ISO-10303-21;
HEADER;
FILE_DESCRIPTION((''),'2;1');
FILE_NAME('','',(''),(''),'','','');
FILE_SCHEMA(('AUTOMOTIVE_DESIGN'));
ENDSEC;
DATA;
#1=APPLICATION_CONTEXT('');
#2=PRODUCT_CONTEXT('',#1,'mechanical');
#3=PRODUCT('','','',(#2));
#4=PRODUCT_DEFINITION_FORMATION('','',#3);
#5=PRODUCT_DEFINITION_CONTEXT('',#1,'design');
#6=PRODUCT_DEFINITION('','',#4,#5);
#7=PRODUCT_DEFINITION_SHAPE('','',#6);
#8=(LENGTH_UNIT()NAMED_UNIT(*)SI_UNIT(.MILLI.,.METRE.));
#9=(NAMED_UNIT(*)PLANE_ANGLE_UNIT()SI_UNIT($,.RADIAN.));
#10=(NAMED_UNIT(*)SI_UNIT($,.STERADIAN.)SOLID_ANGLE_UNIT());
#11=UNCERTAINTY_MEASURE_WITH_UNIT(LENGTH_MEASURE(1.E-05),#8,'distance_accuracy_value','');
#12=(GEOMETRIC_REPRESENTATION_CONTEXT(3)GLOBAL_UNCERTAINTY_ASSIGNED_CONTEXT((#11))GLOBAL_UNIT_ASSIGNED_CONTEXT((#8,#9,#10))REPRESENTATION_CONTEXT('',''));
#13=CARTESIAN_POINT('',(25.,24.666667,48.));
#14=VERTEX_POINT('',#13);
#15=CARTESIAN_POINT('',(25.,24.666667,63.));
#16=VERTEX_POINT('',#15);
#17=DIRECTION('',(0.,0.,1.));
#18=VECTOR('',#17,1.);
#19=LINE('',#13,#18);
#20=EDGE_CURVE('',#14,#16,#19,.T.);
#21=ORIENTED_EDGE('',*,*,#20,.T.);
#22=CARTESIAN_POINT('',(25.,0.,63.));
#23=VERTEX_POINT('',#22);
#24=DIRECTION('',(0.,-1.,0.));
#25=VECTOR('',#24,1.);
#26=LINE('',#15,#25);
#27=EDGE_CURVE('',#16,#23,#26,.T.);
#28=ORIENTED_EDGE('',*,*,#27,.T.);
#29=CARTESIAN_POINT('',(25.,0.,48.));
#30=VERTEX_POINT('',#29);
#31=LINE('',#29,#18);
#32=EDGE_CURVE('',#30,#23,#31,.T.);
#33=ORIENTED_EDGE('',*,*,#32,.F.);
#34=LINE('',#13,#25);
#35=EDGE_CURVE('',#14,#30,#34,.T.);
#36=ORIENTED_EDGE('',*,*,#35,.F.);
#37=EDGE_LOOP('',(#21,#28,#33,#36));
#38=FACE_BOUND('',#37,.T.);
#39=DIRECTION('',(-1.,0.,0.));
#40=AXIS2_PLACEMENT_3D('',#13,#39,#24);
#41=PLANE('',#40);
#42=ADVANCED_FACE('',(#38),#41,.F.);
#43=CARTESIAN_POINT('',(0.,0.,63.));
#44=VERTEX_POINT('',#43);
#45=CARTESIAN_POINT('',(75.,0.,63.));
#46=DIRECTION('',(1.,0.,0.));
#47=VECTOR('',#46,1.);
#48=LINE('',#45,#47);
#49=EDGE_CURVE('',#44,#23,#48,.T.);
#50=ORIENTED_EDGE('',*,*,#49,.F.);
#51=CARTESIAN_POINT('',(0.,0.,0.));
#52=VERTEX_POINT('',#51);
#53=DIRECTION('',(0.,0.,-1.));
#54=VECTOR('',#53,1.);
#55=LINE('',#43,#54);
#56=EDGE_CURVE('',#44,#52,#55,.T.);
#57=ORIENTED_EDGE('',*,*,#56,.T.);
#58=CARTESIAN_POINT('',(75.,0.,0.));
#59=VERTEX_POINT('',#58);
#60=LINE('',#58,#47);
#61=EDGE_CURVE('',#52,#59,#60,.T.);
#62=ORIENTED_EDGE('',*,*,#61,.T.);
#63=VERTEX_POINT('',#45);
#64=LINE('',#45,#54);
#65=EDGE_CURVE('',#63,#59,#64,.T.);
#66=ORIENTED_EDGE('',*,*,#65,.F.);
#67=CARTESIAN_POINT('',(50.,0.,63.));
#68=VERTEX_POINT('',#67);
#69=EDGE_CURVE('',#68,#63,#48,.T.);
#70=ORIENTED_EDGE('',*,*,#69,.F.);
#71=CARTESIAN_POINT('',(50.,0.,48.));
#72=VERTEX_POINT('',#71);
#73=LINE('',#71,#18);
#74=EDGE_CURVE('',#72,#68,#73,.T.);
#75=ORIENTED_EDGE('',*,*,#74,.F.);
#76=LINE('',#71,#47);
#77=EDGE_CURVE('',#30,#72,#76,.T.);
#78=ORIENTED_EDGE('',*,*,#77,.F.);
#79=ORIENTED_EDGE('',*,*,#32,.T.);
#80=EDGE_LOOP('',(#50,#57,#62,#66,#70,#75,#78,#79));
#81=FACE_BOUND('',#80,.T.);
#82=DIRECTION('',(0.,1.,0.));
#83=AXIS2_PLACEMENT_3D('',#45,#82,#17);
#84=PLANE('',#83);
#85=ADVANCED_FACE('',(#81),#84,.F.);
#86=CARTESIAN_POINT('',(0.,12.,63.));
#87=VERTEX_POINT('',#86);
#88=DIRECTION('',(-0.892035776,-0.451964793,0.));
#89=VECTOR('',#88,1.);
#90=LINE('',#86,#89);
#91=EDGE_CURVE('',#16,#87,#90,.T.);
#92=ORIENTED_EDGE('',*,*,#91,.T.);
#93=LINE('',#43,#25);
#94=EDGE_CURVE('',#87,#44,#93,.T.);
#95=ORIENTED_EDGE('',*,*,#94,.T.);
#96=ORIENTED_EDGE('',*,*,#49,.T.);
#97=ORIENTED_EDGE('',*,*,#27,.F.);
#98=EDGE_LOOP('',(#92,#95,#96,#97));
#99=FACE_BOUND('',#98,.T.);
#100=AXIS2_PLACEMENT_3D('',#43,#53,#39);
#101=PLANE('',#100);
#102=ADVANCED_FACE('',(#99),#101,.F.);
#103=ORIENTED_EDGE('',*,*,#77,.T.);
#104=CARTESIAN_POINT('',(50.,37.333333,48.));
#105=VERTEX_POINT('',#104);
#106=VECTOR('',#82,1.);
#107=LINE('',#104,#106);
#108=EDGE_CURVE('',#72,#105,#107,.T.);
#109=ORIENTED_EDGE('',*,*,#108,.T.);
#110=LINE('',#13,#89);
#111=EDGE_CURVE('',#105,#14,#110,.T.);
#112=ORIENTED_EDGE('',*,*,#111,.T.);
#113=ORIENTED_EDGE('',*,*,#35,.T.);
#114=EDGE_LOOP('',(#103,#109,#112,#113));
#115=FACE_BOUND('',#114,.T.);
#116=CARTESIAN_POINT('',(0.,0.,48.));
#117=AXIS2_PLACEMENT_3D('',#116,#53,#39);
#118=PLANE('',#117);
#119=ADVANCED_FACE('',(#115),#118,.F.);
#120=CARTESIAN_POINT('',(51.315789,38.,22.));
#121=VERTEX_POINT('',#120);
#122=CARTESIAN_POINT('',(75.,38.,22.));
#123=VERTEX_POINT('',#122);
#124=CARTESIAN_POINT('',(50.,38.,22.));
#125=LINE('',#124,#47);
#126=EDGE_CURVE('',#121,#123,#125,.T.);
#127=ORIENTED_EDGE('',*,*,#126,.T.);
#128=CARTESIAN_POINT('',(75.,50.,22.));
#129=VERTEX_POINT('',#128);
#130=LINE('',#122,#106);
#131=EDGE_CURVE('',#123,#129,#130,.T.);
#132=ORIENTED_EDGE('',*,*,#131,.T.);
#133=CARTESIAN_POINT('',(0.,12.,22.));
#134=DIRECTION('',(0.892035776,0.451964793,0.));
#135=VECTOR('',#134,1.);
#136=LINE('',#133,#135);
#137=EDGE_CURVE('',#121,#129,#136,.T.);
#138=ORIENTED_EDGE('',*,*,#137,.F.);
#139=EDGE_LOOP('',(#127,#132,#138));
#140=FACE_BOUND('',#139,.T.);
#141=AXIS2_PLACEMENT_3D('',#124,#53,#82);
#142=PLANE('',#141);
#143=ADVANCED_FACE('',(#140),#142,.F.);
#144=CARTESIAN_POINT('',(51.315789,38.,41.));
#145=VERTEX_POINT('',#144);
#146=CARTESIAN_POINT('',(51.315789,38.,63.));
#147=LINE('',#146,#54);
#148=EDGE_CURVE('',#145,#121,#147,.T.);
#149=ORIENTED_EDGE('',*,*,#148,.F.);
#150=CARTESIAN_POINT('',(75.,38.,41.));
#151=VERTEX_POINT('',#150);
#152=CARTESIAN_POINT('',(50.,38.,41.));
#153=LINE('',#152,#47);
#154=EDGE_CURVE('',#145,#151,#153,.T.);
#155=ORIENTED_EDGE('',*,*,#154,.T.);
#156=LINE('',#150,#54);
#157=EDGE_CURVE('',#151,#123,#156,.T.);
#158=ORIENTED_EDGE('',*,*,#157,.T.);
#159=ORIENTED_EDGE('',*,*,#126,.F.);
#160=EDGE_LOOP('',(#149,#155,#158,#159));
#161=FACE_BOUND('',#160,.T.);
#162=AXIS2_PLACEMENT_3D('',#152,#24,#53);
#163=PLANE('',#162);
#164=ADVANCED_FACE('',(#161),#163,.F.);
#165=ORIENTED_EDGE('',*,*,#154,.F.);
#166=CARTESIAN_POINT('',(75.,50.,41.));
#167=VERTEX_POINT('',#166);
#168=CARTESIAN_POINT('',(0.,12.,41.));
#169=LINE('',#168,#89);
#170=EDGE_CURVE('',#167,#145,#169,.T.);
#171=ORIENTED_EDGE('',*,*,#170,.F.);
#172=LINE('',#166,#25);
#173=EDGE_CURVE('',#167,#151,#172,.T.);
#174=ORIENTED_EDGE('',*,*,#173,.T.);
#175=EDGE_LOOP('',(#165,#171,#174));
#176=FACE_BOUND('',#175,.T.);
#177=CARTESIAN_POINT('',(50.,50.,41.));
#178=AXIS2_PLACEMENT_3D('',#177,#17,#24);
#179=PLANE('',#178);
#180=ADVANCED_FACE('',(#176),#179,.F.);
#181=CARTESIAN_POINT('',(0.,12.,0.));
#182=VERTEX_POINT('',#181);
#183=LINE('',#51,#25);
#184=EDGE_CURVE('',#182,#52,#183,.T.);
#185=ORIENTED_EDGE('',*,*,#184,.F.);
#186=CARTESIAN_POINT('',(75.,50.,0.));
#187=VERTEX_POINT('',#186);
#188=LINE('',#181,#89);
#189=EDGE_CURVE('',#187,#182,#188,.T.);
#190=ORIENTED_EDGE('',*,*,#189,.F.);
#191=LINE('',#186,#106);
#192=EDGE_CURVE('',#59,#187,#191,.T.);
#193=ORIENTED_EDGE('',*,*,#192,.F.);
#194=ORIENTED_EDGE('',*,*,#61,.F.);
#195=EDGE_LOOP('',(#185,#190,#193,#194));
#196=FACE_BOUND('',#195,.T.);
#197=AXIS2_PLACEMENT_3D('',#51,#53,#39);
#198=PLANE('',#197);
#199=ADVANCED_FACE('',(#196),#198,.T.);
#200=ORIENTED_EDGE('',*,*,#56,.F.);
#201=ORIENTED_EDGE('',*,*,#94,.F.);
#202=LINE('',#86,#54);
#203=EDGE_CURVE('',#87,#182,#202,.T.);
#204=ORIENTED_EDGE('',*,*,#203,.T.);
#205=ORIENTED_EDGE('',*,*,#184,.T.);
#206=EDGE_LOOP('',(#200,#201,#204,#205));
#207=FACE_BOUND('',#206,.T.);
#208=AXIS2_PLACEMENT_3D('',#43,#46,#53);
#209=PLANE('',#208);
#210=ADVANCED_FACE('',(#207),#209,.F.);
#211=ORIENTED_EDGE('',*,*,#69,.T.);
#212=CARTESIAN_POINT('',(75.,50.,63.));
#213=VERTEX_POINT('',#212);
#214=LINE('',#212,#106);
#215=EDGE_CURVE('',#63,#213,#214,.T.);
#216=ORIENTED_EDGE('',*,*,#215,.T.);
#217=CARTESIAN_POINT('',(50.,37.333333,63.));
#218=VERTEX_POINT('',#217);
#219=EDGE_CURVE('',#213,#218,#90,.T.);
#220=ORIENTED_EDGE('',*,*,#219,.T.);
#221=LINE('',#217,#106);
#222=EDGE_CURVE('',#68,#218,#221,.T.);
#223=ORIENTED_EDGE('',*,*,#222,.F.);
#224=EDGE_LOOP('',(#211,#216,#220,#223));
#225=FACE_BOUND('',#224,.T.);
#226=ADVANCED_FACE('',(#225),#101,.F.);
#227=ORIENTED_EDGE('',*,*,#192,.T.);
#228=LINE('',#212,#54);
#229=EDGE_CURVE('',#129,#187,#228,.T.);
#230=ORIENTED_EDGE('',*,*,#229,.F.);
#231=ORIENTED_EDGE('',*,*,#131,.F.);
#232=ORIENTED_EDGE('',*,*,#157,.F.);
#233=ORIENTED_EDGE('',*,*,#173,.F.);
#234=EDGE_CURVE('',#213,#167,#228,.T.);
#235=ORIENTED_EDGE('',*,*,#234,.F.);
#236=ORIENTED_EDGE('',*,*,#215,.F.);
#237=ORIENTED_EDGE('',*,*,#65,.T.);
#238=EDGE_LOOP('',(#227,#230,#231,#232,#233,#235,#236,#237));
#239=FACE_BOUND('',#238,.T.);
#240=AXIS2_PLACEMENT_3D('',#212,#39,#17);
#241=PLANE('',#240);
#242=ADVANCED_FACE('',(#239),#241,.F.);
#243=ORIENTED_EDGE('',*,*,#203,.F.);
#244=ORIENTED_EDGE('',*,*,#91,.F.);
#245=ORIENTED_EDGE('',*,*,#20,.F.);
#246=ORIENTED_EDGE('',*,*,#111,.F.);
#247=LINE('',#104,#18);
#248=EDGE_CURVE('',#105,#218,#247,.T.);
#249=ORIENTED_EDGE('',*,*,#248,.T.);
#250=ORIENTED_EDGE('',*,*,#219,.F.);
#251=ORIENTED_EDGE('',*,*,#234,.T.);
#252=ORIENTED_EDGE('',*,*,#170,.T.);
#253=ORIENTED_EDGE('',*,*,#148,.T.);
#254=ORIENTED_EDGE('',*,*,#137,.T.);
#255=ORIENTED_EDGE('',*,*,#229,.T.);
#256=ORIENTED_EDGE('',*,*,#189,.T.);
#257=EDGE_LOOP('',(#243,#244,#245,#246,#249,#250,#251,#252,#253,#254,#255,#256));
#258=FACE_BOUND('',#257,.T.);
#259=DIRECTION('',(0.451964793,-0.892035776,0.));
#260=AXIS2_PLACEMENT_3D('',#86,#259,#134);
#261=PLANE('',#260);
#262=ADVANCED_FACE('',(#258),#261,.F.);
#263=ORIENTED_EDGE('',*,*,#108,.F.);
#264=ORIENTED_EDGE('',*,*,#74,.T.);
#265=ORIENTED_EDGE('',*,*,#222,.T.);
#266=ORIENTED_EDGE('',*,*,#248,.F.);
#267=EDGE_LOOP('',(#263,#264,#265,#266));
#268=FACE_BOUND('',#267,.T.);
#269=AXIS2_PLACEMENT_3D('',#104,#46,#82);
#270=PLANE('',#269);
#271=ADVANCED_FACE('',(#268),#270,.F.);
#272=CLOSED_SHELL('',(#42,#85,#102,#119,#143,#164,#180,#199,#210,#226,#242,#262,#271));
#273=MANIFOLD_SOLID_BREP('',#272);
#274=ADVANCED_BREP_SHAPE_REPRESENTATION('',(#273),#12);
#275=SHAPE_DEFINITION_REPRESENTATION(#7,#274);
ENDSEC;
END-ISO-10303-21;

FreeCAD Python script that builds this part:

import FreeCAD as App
import Part
import Sketcher
Q = App.Units.Quantity

doc = App.newDocument("Part")
params = doc.addObject("Spreadsheet::Sheet", "Params")
for row, (alias, value) in enumerate([
    ("sketch1_width", "75 mm"),
    ("sketch1_height", "50 mm"),
    ("sketch1_height2", "12 mm"),
    ("pad1_length", "63 mm"),
    ("sketch2_width", "25 mm"),
    ("pocket1_length", "15 mm"),
    ("sketch3_width", "12 mm"),
    ("sketch3_height", "19 mm"),
    ("pocket2_length", "25 mm"),
], start=1):
    params.set(f"A{row}", alias)
    params.set(f"B{row}", "=" + value)
    params.setAlias(f"B{row}", alias)

body = doc.addObject("PartDesign::Body", "Body")

# Sketch on XY plane
sketch1 = body.newObject("Sketcher::SketchObject", "Sketch")
sketch1.AttachmentSupport = (doc.getObject("XY_Plane"), [""])
sketch1.MapMode = "FlatFace"
sketch1.addGeometry([
    Part.LineSegment(App.Vector(0, 0, 0), App.Vector(75, 0, 0)),
    Part.LineSegment(App.Vector(75, 0, 0), App.Vector(75, 50, 0)),
    Part.LineSegment(App.Vector(75, 50, 0), App.Vector(0, 12, 0)),
    Part.LineSegment(App.Vector(0, 12, 0), App.Vector(0, 0, 0)),
], False)
sketch1.addConstraint([
    Sketcher.Constraint("Coincident", 0, 2, 1, 1),
    Sketcher.Constraint("Coincident", 1, 2, 2, 1),
    Sketcher.Constraint("Coincident", 2, 2, 3, 1),
    Sketcher.Constraint("Coincident", 3, 2, 0, 1),
    Sketcher.Constraint("Horizontal", 0),
    Sketcher.Constraint("Vertical", 1),
    Sketcher.Constraint("Vertical", 3),
    Sketcher.Constraint("Coincident", 3, 2, -1, 1),
    Sketcher.Constraint("DistanceX", 0, 1, 0, 2, Q("75 mm")),
    Sketcher.Constraint("DistanceY", 1, 1, 1, 2, Q("50 mm")),
    Sketcher.Constraint("DistanceY", 3, 2, 3, 1, Q("12 mm")),
])
sketch1.setExpression("Constraints[8]", "Params.sketch1_width")
sketch1.setExpression("Constraints[9]", "Params.sketch1_height")
sketch1.setExpression("Constraints[10]", "Params.sketch1_height2")
pad1 = body.newObject("PartDesign::Pad", "Pad")
pad1.Profile = sketch1
pad1.setExpression("Length", "Params.pad1_length")

# Sketch on XY plane
sketch2 = body.newObject("Sketcher::SketchObject", "Sketch001")
sketch2.AttachmentSupport = (doc.getObject("XY_Plane"), [""])
sketch2.MapMode = "FlatFace"
sketch2.AttachmentOffset = App.Placement(App.Vector(0, 0, 63), App.Rotation())
sketch2.addGeometry([
    Part.LineSegment(App.Vector(25, 25, 0), App.Vector(25, 0, 0)),
    Part.LineSegment(App.Vector(25, 0, 0), App.Vector(50, 0, 0)),
    Part.LineSegment(App.Vector(50, 0, 0), App.Vector(50, 37, 0)),
    Part.LineSegment(App.Vector(50, 37, 0), App.Vector(25, 25, 0)),
], False)
sketch2.addConstraint([
    Sketcher.Constraint("Coincident", 0, 2, 1, 1),
    Sketcher.Constraint("Coincident", 1, 2, 2, 1),
    Sketcher.Constraint("Coincident", 2, 2, 3, 1),
    Sketcher.Constraint("Coincident", 3, 2, 0, 1),
    Sketcher.Constraint("Vertical", 0),
    Sketcher.Constraint("Horizontal", 1),
    Sketcher.Constraint("Vertical", 2),
    Sketcher.Constraint("PointOnObject", 0, 2, -1),
    Sketcher.Constraint("DistanceX", 1, 1, 1, 2, Q("25 mm")),
    Sketcher.Constraint("DistanceX", -1, 1, 0, 2, Q("25 mm")),
    Sketcher.Constraint("Distance", 3, Q("28.025782 mm")),
    Sketcher.Constraint("DistanceY", 0, 2, 0, 1, Q("24.666667 mm")),
])
sketch2.setExpression("Constraints[8]", "Params.sketch2_width")
pocket1 = body.newObject("PartDesign::Pocket", "Pocket")
pocket1.Profile = sketch2
pocket1.setExpression("Length", "Params.pocket1_length")

# Sketch on YZ plane
sketch3 = body.newObject("Sketcher::SketchObject", "Sketch002")
sketch3.AttachmentSupport = (doc.getObject("YZ_Plane"), [""])
sketch3.MapMode = "FlatFace"
sketch3.AttachmentOffset = App.Placement(App.Vector(0, 0, 75), App.Rotation())
sketch3.addGeometry([
    Part.LineSegment(App.Vector(50, 41, 0), App.Vector(38, 41, 0)),
    Part.LineSegment(App.Vector(38, 41, 0), App.Vector(38, 22, 0)),
    Part.LineSegment(App.Vector(38, 22, 0), App.Vector(50, 22, 0)),
    Part.LineSegment(App.Vector(50, 22, 0), App.Vector(50, 41, 0)),
], False)
sketch3.addConstraint([
    Sketcher.Constraint("Coincident", 0, 2, 1, 1),
    Sketcher.Constraint("Coincident", 1, 2, 2, 1),
    Sketcher.Constraint("Coincident", 2, 2, 3, 1),
    Sketcher.Constraint("Coincident", 3, 2, 0, 1),
    Sketcher.Constraint("Horizontal", 0),
    Sketcher.Constraint("Vertical", 1),
    Sketcher.Constraint("Horizontal", 2),
    Sketcher.Constraint("Vertical", 3),
    Sketcher.Constraint("DistanceX", 0, 2, 0, 1, Q("12 mm")),
    Sketcher.Constraint("DistanceY", 1, 2, 1, 1, Q("19 mm")),
    Sketcher.Constraint("DistanceX", -1, 1, 0, 2, Q("38 mm")),
    Sketcher.Constraint("DistanceY", -1, 1, 0, 2, Q("41 mm")),
])
sketch3.setExpression("Constraints[8]", "Params.sketch3_width")
sketch3.setExpression("Constraints[9]", "Params.sketch3_height")
pocket2 = body.newObject("PartDesign::Pocket", "Pocket001")
pocket2.Profile = sketch3
pocket2.setExpression("Length", "Params.pocket2_length")

doc.recompute()
